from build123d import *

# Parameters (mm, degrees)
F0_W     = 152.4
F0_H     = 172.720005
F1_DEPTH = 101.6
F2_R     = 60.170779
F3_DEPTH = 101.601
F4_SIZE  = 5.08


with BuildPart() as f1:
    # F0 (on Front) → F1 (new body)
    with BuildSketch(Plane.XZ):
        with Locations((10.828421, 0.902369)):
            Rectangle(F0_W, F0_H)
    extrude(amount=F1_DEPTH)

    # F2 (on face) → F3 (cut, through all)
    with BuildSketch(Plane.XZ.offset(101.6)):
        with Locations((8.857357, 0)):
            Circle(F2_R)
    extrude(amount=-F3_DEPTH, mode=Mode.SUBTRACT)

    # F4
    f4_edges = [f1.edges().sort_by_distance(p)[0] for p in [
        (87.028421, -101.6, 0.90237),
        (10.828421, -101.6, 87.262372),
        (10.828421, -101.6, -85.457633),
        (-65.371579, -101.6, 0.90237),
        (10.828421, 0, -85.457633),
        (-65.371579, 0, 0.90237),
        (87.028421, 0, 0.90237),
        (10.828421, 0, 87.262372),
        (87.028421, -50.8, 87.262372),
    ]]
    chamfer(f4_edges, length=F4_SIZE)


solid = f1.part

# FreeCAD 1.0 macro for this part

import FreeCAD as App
import Part
import Sketcher
from FreeCAD import Vector
Q = App.Units.Quantity


def edges_at(feature, points):
    """Names of the edges that pass closest to the given points."""
    edges = feature.Shape.Edges
    near = lambda p: min(range(len(edges)), key=lambda i: edges[i].distToShape(Part.Vertex(*p))[0])
    return sorted({f"Edge{near(p) + 1}" for p in points})


def add_polygon(sketch, points):
    """Adds a closed chain of lines whose ends are joined by coincident constraints."""
    first, n = sketch.GeometryCount, len(points)
    for a, b in zip(points, points[1:] + points[:1]):
        sketch.addGeometry(Part.LineSegment(App.Vector(*a, 0), App.Vector(*b, 0)), False)
    for i in range(n):
        sketch.addConstraint(Sketcher.Constraint("Coincident", first + i, 2, first + (i + 1) % n, 1))

doc = App.newDocument("Part")
params = doc.addObject("Spreadsheet::Sheet", "Params")
for row, (alias, value) in enumerate([
    ("sketch1_width", "6 in"),
    ("sketch1_height", "6.8000002 in"),
    ("pad1_length", "4 in"),
    ("chamfer_size", "0.2 in"),
], start=1):
    params.set(f"A{row}", alias)
    params.set(f"B{row}", "=" + value)
    params.setAlias(f"B{row}", alias)

body = doc.addObject("PartDesign::Body", "Body")

sketch1 = body.newObject("Sketcher::SketchObject", "Sketch")
sketch1.AttachmentSupport = (doc.getObject("XZ_Plane"), [""])
sketch1.MapMode = "FlatFace"
add_polygon(sketch1, [(-65.371579, 87.262372), (-65.371579, -85.457634), (87.028421, -85.457634), (87.028421, 87.262372)])
sketch1.addConstraint([
    Sketcher.Constraint("Vertical", 0),
    Sketcher.Constraint("Horizontal", 1),
    Sketcher.Constraint("Vertical", 2),
    Sketcher.Constraint("Horizontal", 3),
    Sketcher.Constraint("DistanceX", 1, 1, 1, 2, Q("6 in")),
    Sketcher.Constraint("DistanceY", 0, 2, 0, 1, Q("6.8000002 in")),
    Sketcher.Constraint("DistanceX", 0, 2, -1, 1, Q("65.371579 mm")),
    Sketcher.Constraint("DistanceY", -1, 1, 2, 2, Q("87.262372 mm")),
])
sketch1.setExpression("Constraints[8]", "Params.sketch1_width")
sketch1.setExpression("Constraints[9]", "Params.sketch1_height")
pad1 = body.newObject("PartDesign::Pad", "Pad")
pad1.Profile = sketch1
pad1.setExpression("Length", "Params.pad1_length")

sketch2 = body.newObject("Sketcher::SketchObject", "Sketch001")
sketch2.AttachmentSupport = (doc.getObject("XZ_Plane"), [""])
sketch2.MapMode = "FlatFace"
sketch2.AttachmentOffset = App.Placement(Vector(0, 0, 4 * 25.4), App.Rotation())
sketch2.addGeometry(Part.Circle(Vector(8.857357, 0, 0), Vector(0, 0, 1), 60.170779), False)
sketch2.addConstraint([
    Sketcher.Constraint("PointOnObject", 0, 3, -1),
    Sketcher.Constraint("Diameter", 0, Q("120.341558 mm")),
    Sketcher.Constraint("DistanceX", -1, 1, 0, 3, Q("8.857357 mm")),
])
pocket1 = body.newObject("PartDesign::Pocket", "Pocket")
pocket1.Profile = sketch2
pocket1.Type = "ThroughAll"
doc.recompute()

chamfer = body.newObject("PartDesign::Chamfer", "Chamfer")
chamfer.Base = (pocket1, edges_at(pocket1, [
    (87.028, -101.6, 0.902),
    (10.828, -101.6, 87.262),
    (10.828, -101.6, -85.458),
    (-65.372, -101.6, 0.902),
    (10.828, 0, -85.458),
    (-65.372, 0, 0.902),
    (87.028, 0, 0.902),
    (10.828, 0, 87.262),
    (87.028, -50.8, 87.262),
]))
chamfer.setExpression("Size", "Params.chamfer_size")

doc.recompute()
